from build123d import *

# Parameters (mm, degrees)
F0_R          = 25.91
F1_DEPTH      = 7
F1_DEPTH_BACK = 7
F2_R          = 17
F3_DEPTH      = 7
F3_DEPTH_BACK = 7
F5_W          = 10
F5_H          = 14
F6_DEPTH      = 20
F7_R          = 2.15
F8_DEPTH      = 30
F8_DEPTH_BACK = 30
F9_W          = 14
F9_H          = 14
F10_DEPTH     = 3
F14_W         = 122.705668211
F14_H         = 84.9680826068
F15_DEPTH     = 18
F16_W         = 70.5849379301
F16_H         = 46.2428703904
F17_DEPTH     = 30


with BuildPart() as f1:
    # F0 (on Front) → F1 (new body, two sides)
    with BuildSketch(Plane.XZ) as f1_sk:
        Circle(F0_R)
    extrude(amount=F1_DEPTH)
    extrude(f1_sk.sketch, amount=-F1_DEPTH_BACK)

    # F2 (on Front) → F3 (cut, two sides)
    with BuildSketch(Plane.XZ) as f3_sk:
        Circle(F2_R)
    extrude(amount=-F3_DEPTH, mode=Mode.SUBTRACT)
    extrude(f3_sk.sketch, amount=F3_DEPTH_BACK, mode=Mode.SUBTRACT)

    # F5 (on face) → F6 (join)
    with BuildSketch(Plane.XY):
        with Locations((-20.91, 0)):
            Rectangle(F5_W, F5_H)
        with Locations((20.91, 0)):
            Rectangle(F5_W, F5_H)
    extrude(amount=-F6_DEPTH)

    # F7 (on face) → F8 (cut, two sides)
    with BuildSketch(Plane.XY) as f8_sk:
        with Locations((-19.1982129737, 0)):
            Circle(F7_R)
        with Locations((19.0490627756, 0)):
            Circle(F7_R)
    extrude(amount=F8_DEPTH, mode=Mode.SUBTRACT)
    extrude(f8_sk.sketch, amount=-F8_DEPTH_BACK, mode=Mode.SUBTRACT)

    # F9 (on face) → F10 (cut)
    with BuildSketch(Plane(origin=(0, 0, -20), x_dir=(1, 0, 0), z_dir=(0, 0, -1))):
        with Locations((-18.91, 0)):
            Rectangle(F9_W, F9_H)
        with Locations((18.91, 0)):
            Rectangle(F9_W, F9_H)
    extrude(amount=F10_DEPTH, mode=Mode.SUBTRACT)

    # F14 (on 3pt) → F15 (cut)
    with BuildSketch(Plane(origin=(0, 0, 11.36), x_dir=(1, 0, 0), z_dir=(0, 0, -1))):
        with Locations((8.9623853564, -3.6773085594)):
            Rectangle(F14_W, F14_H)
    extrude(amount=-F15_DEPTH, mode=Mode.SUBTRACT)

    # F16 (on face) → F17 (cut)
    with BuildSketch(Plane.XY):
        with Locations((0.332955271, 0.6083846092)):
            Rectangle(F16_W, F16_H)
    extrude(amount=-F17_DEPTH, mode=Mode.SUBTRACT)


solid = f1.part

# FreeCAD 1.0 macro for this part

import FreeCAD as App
import Part
import Sketcher
from FreeCAD import Vector
Q = App.Units.Quantity

doc = App.newDocument("Part")
body = doc.addObject("PartDesign::Body", "Body")
body.AllowCompound = True

# Sketch on XZ plane
sketch1 = doc.addObject("Sketcher::SketchObject", "Sketch")
body.addObject(sketch1)
sketch1.AttachmentSupport = (doc.XZ_Plane, [""])
sketch1.MapMode = "FlatFace"
sketch1.addGeometry(Part.Circle(Vector(0, 0, 0), Vector(0, 0, 1), 25.91), False)
sketch1.addConstraint(Sketcher.Constraint("Coincident", 0, 3, -1, 1))
sketch1.addConstraint(Sketcher.Constraint("Diameter", 0, Q("51.82 mm")))
pad1 = doc.addObject("PartDesign::Pad", "Pad")
body.addObject(pad1)
pad1.Profile = sketch1
pad1.Type = "TwoLengths"
pad1.Length = 7
pad1.Length2 = 7

# Sketch on XZ plane
sketch2 = doc.addObject("Sketcher::SketchObject", "Sketch001")
body.addObject(sketch2)
sketch2.AttachmentSupport = (doc.XZ_Plane, [""])
sketch2.MapMode = "FlatFace"
sketch2.addGeometry(Part.Circle(Vector(0, 0, 0), Vector(0, 0, 1), 17), False)
sketch2.addConstraint(Sketcher.Constraint("Coincident", 0, 3, -1, 1))
sketch2.addConstraint(Sketcher.Constraint("Diameter", 0, Q("34 mm")))
pocket1 = doc.addObject("PartDesign::Pocket", "Pocket")
body.addObject(pocket1)
pocket1.Profile = sketch2
pocket1.Type = "ThroughAll"
pocket1.Midplane = True

# Sketch on XY plane
sketch3 = doc.addObject("Sketcher::SketchObject", "Sketch002")
body.addObject(sketch3)
sketch3.AttachmentSupport = (doc.XY_Plane, [""])
sketch3.MapMode = "FlatFace"
sketch3.addGeometry(Part.LineSegment(Vector(-25.91, 7, 0), Vector(-25.91, -7, 0)), False)
sketch3.addGeometry(Part.LineSegment(Vector(-25.91, -7, 0), Vector(-15.91, -7, 0)), False)
sketch3.addGeometry(Part.LineSegment(Vector(-15.91, -7, 0), Vector(-15.91, 7, 0)), False)
sketch3.addGeometry(Part.LineSegment(Vector(-15.91, 7, 0), Vector(-25.91, 7, 0)), False)
sketch3.addGeometry(Part.LineSegment(Vector(15.91, 7, 0), Vector(15.91, -7, 0)), False)
sketch3.addGeometry(Part.LineSegment(Vector(15.91, -7, 0), Vector(25.91, -7, 0)), False)
sketch3.addGeometry(Part.LineSegment(Vector(25.91, -7, 0), Vector(25.91, 7, 0)), False)
sketch3.addGeometry(Part.LineSegment(Vector(25.91, 7, 0), Vector(15.91, 7, 0)), False)
sketch3.addConstraint(Sketcher.Constraint("Coincident", 0, 2, 1, 1))
sketch3.addConstraint(Sketcher.Constraint("Coincident", 1, 2, 2, 1))
sketch3.addConstraint(Sketcher.Constraint("Coincident", 2, 2, 3, 1))
sketch3.addConstraint(Sketcher.Constraint("Coincident", 3, 2, 0, 1))
sketch3.addConstraint(Sketcher.Constraint("Coincident", 4, 2, 5, 1))
sketch3.addConstraint(Sketcher.Constraint("Coincident", 5, 2, 6, 1))
sketch3.addConstraint(Sketcher.Constraint("Coincident", 6, 2, 7, 1))
sketch3.addConstraint(Sketcher.Constraint("Coincident", 7, 2, 4, 1))
sketch3.addConstraint(Sketcher.Constraint("Vertical", 0))
sketch3.addConstraint(Sketcher.Constraint("Horizontal", 1))
sketch3.addConstraint(Sketcher.Constraint("Vertical", 2))
sketch3.addConstraint(Sketcher.Constraint("Horizontal", 3))
sketch3.addConstraint(Sketcher.Constraint("Vertical", 4))
sketch3.addConstraint(Sketcher.Constraint("Horizontal", 5))
sketch3.addConstraint(Sketcher.Constraint("Vertical", 6))
sketch3.addConstraint(Sketcher.Constraint("Horizontal", 7))
sketch3.addConstraint(Sketcher.Constraint("Symmetric", 2, 2, 4, 2, -1, 1))
sketch3.addConstraint(Sketcher.Constraint("Symmetric", 0, 2, 6, 2, -1, 1))
sketch3.addConstraint(Sketcher.Constraint("Horizontal", 1, 2, 4, 2))
sketch3.addConstraint(Sketcher.Constraint("DistanceX", 1, 1, 1, 2, Q("10 mm")))
sketch3.addConstraint(Sketcher.Constraint("DistanceY", 0, 2, 0, 1, Q("14 mm")))
sketch3.addConstraint(Sketcher.Constraint("DistanceX", 0, 2, -1, 1, Q("25.91 mm")))
pad2 = doc.addObject("PartDesign::Pad", "Pad001")
body.addObject(pad2)
pad2.Profile = sketch3
pad2.Length = 20
pad2.Reversed = True

# Sketch on XY plane
sketch4 = doc.addObject("Sketcher::SketchObject", "Sketch003")
body.addObject(sketch4)
sketch4.AttachmentSupport = (doc.XY_Plane, [""])
sketch4.MapMode = "FlatFace"
sketch4.addGeometry(Part.Circle(Vector(-19.198213, 0, 0), Vector(0, 0, 1), 2.15), False)
sketch4.addGeometry(Part.Circle(Vector(19.049063, 0, 0), Vector(0, 0, 1), 2.15), False)
sketch4.addConstraint(Sketcher.Constraint("Equal", 0, 1))
sketch4.addConstraint(Sketcher.Constraint("PointOnObject", 0, 3, -1))
sketch4.addConstraint(Sketcher.Constraint("PointOnObject", 1, 3, -1))
sketch4.addConstraint(Sketcher.Constraint("Diameter", 0, Q("4.3 mm")))
sketch4.addConstraint(Sketcher.Constraint("DistanceX", 0, 3, -1, 1, Q("19.198213 mm")))
sketch4.addConstraint(Sketcher.Constraint("DistanceX", -1, 1, 1, 3, Q("19.049063 mm")))
pocket2 = doc.addObject("PartDesign::Pocket", "Pocket001")
body.addObject(pocket2)
pocket2.Profile = sketch4
pocket2.Type = "ThroughAll"
pocket2.Midplane = True

# Sketch on XY plane
sketch5 = doc.addObject("Sketcher::SketchObject", "Sketch004")
body.addObject(sketch5)
sketch5.AttachmentSupport = (doc.XY_Plane, [""])
sketch5.MapMode = "FlatFace"
sketch5.AttachmentOffset = App.Placement(Vector(0, 0, -20), App.Rotation())
sketch5.addGeometry(Part.LineSegment(Vector(-25.91, -7, 0), Vector(-25.91, 7, 0)), False)
sketch5.addGeometry(Part.LineSegment(Vector(-25.91, 7, 0), Vector(-11.91, 7, 0)), False)
sketch5.addGeometry(Part.LineSegment(Vector(-11.91, 7, 0), Vector(-11.91, -7, 0)), False)
sketch5.addGeometry(Part.LineSegment(Vector(-11.91, -7, 0), Vector(-25.91, -7, 0)), False)
sketch5.addGeometry(Part.LineSegment(Vector(11.91, -7, 0), Vector(11.91, 7, 0)), False)
sketch5.addGeometry(Part.LineSegment(Vector(11.91, 7, 0), Vector(25.91, 7, 0)), False)
sketch5.addGeometry(Part.LineSegment(Vector(25.91, 7, 0), Vector(25.91, -7, 0)), False)
sketch5.addGeometry(Part.LineSegment(Vector(25.91, -7, 0), Vector(11.91, -7, 0)), False)
sketch5.addConstraint(Sketcher.Constraint("Coincident", 0, 2, 1, 1))
sketch5.addConstraint(Sketcher.Constraint("Coincident", 1, 2, 2, 1))
sketch5.addConstraint(Sketcher.Constraint("Coincident", 2, 2, 3, 1))
sketch5.addConstraint(Sketcher.Constraint("Coincident", 3, 2, 0, 1))
sketch5.addConstraint(Sketcher.Constraint("Coincident", 4, 2, 5, 1))
sketch5.addConstraint(Sketcher.Constraint("Coincident", 5, 2, 6, 1))
sketch5.addConstraint(Sketcher.Constraint("Coincident", 6, 2, 7, 1))
sketch5.addConstraint(Sketcher.Constraint("Coincident", 7, 2, 4, 1))
sketch5.addConstraint(Sketcher.Constraint("Vertical", 0))
sketch5.addConstraint(Sketcher.Constraint("Horizontal", 1))
sketch5.addConstraint(Sketcher.Constraint("Vertical", 2))
sketch5.addConstraint(Sketcher.Constraint("Horizontal", 3))
sketch5.addConstraint(Sketcher.Constraint("Vertical", 4))
sketch5.addConstraint(Sketcher.Constraint("Horizontal", 5))
sketch5.addConstraint(Sketcher.Constraint("Vertical", 6))
sketch5.addConstraint(Sketcher.Constraint("Horizontal", 7))
sketch5.addConstraint(Sketcher.Constraint("Symmetric", 2, 2, 4, 2, -1, 1))
sketch5.addConstraint(Sketcher.Constraint("Symmetric", 0, 2, 6, 2, -1, 1))
sketch5.addConstraint(Sketcher.Constraint("Horizontal", 1, 2, 4, 2))
sketch5.addConstraint(Sketcher.Constraint("Equal", 7, 0))
sketch5.addConstraint(Sketcher.Constraint("DistanceX", 1, 1, 1, 2, Q("14 mm")))
sketch5.addConstraint(Sketcher.Constraint("DistanceX", 0, 2, -1, 1, Q("25.91 mm")))
pocket3 = doc.addObject("PartDesign::Pocket", "Pocket002")
body.addObject(pocket3)
pocket3.Profile = sketch5
pocket3.Length = 3

# Sketch on XY plane
sketch6 = doc.addObject("Sketcher::SketchObject", "Sketch005")
body.addObject(sketch6)
sketch6.AttachmentSupport = (doc.XY_Plane, [""])
sketch6.MapMode = "FlatFace"
sketch6.AttachmentOffset = App.Placement(Vector(0, 0, 11.36), App.Rotation())
sketch6.addGeometry(Part.LineSegment(Vector(-52.390449, -38.806733, 0), Vector(-52.390449, 46.16135, 0)), False)
sketch6.addGeometry(Part.LineSegment(Vector(-52.390449, 46.16135, 0), Vector(70.315219, 46.16135, 0)), False)
sketch6.addGeometry(Part.LineSegment(Vector(70.315219, 46.16135, 0), Vector(70.315219, -38.806733, 0)), False)
sketch6.addGeometry(Part.LineSegment(Vector(70.315219, -38.806733, 0), Vector(-52.390449, -38.806733, 0)), False)
sketch6.addConstraint(Sketcher.Constraint("Coincident", 0, 2, 1, 1))
sketch6.addConstraint(Sketcher.Constraint("Coincident", 1, 2, 2, 1))
sketch6.addConstraint(Sketcher.Constraint("Coincident", 2, 2, 3, 1))
sketch6.addConstraint(Sketcher.Constraint("Coincident", 3, 2, 0, 1))
sketch6.addConstraint(Sketcher.Constraint("Vertical", 0))
sketch6.addConstraint(Sketcher.Constraint("Horizontal", 1))
sketch6.addConstraint(Sketcher.Constraint("Vertical", 2))
sketch6.addConstraint(Sketcher.Constraint("Horizontal", 3))
sketch6.addConstraint(Sketcher.Constraint("DistanceX", 1, 1, 1, 2, Q("122.705668 mm")))
sketch6.addConstraint(Sketcher.Constraint("DistanceY", 0, 1, 0, 2, Q("84.968083 mm")))
sketch6.addConstraint(Sketcher.Constraint("DistanceX", 0, 2, -1, 1, Q("52.390449 mm")))
sketch6.addConstraint(Sketcher.Constraint("DistanceY", -1, 1, 0, 2, Q("46.16135 mm")))
pocket4 = doc.addObject("PartDesign::Pocket", "Pocket003")
body.addObject(pocket4)
pocket4.Profile = sketch6
pocket4.Length = 18
pocket4.Reversed = True

# Sketch on XY plane
sketch7 = doc.addObject("Sketcher::SketchObject", "Sketch006")
body.addObject(sketch7)
sketch7.AttachmentSupport = (doc.XY_Plane, [""])
sketch7.MapMode = "FlatFace"
sketch7.addGeometry(Part.LineSegment(Vector(-34.959514, 23.72982, 0), Vector(-34.959514, -22.513051, 0)), False)
sketch7.addGeometry(Part.LineSegment(Vector(-34.959514, -22.513051, 0), Vector(35.625424, -22.513051, 0)), False)
sketch7.addGeometry(Part.LineSegment(Vector(35.625424, -22.513051, 0), Vector(35.625424, 23.72982, 0)), False)
sketch7.addGeometry(Part.LineSegment(Vector(35.625424, 23.72982, 0), Vector(-34.959514, 23.72982, 0)), False)
sketch7.addConstraint(Sketcher.Constraint("Coincident", 0, 2, 1, 1))
sketch7.addConstraint(Sketcher.Constraint("Coincident", 1, 2, 2, 1))
sketch7.addConstraint(Sketcher.Constraint("Coincident", 2, 2, 3, 1))
sketch7.addConstraint(Sketcher.Constraint("Coincident", 3, 2, 0, 1))
sketch7.addConstraint(Sketcher.Constraint("Vertical", 0))
sketch7.addConstraint(Sketcher.Constraint("Horizontal", 1))
sketch7.addConstraint(Sketcher.Constraint("Vertical", 2))
sketch7.addConstraint(Sketcher.Constraint("Horizontal", 3))
sketch7.addConstraint(Sketcher.Constraint("DistanceY", 0, 2, 0, 1, Q("46.24287 mm")))
sketch7.addConstraint(Sketcher.Constraint("DistanceX", 1, 1, 1, 2, Q("70.584938 mm")))
sketch7.addConstraint(Sketcher.Constraint("DistanceY", 0, 2, -1, 1, Q("22.513051 mm")))
sketch7.addConstraint(Sketcher.Constraint("DistanceX", 0, 2, -1, 1, Q("34.959514 mm")))
pocket5 = doc.addObject("PartDesign::Pocket", "Pocket004")
body.addObject(pocket5)
pocket5.Profile = sketch7
pocket5.Length = 30

doc.recompute()
